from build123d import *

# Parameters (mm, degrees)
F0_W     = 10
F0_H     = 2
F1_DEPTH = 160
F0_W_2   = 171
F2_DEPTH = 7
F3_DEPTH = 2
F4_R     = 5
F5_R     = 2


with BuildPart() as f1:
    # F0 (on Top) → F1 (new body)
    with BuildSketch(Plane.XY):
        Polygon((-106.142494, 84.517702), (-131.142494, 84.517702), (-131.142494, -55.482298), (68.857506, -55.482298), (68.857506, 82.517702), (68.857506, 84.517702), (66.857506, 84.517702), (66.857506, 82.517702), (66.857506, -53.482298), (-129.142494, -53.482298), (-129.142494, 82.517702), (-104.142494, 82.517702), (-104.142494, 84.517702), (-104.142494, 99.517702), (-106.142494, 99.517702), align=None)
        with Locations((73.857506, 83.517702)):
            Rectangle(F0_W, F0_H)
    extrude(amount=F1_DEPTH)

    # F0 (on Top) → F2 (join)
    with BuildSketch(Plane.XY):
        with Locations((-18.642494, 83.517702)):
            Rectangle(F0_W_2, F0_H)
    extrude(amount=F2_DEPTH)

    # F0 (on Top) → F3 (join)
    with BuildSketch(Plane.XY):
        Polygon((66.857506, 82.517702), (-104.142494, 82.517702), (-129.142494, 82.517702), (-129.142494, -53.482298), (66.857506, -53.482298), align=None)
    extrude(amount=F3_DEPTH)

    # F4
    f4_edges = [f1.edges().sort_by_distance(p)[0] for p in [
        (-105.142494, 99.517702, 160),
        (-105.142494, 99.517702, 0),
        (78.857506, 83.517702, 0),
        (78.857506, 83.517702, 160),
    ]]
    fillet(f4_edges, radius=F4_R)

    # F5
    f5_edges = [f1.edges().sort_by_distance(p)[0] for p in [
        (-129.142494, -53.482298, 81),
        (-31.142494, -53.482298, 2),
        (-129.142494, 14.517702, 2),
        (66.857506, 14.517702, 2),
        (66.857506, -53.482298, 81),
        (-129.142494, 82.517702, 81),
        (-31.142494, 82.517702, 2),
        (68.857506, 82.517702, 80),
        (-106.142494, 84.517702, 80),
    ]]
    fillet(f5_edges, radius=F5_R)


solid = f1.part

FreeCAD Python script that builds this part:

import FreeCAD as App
import Part
import Sketcher
from FreeCAD import Vector


def edges_at(feature, points):
    """Names of the edges that pass closest to the given points."""
    edges = feature.Shape.Edges
    near = lambda p: min(range(len(edges)), key=lambda i: edges[i].distToShape(Part.Vertex(*p))[0])
    return sorted({f"Edge{near(p) + 1}" for p in points})

doc = App.newDocument("Part")
body = doc.addObject("PartDesign::Body", "Body")

# Sketch on XY plane
sketch1 = body.newObject("Sketcher::SketchObject", "Sketch")
sketch1.AttachmentSupport = (doc.getObject("XY_Plane"), [""])
sketch1.MapMode = "FlatFace"
sketch1.addGeometry([
    Part.LineSegment(Vector(-106.142494, 84.517702, 0), Vector(-131.142494, 84.517702, 0)),  # 0
    Part.LineSegment(Vector(-131.142494, 84.517702, 0), Vector(-131.142494, -55.482298, 0)),  # 1
    Part.LineSegment(Vector(-131.142494, -55.482298, 0), Vector(68.857506, -55.482298, 0)),  # 2
    Part.LineSegment(Vector(68.857506, -55.482298, 0), Vector(68.857506, 82.517702, 0)),  # 3
    Part.LineSegment(Vector(68.857506, 82.517702, 0), Vector(78.857506, 82.517702, 0)),  # 4
    Part.LineSegment(Vector(78.857506, 82.517702, 0), Vector(78.857506, 84.517702, 0)),  # 5
    Part.LineSegment(Vector(78.857506, 84.517702, 0), Vector(66.857506, 84.517702, 0)),  # 6
    Part.LineSegment(Vector(66.857506, 84.517702, 0), Vector(66.857506, -53.482298, 0)),  # 7
    Part.LineSegment(Vector(66.857506, -53.482298, 0), Vector(-129.142494, -53.482298, 0)),  # 8
    Part.LineSegment(Vector(-129.142494, -53.482298, 0), Vector(-129.142494, 82.517702, 0)),  # 9
    Part.LineSegment(Vector(-129.142494, 82.517702, 0), Vector(-104.142494, 82.517702, 0)),  # 10
    Part.LineSegment(Vector(-104.142494, 82.517702, 0), Vector(-104.142494, 99.517702, 0)),  # 11
    Part.LineSegment(Vector(-104.142494, 99.517702, 0), Vector(-106.142494, 99.517702, 0)),  # 12
    Part.LineSegment(Vector(-106.142494, 99.517702, 0), Vector(-106.142494, 84.517702, 0)),  # 13
], False)
sketch1.addConstraint([
    Sketcher.Constraint("Coincident", 0, 2, 1, 1),
    Sketcher.Constraint("Coincident", 1, 2, 2, 1),
    Sketcher.Constraint("Coincident", 2, 2, 3, 1),
    Sketcher.Constraint("Coincident", 3, 2, 4, 1),
    Sketcher.Constraint("Coincident", 4, 2, 5, 1),
    Sketcher.Constraint("Coincident", 5, 2, 6, 1),
    Sketcher.Constraint("Coincident", 6, 2, 7, 1),
    Sketcher.Constraint("Coincident", 7, 2, 8, 1),
    Sketcher.Constraint("Coincident", 8, 2, 9, 1),
    Sketcher.Constraint("Coincident", 9, 2, 10, 1),
    Sketcher.Constraint("Coincident", 10, 2, 11, 1),
    Sketcher.Constraint("Coincident", 11, 2, 12, 1),
    Sketcher.Constraint("Coincident", 12, 2, 13, 1),
    Sketcher.Constraint("Coincident", 13, 2, 0, 1),
    Sketcher.Constraint("Horizontal", 0),
    Sketcher.Constraint("Vertical", 1),
    Sketcher.Constraint("Horizontal", 2),
    Sketcher.Constraint("Vertical", 3),
    Sketcher.Constraint("Horizontal", 4),
    Sketcher.Constraint("Vertical", 5),
    Sketcher.Constraint("Horizontal", 6),
    Sketcher.Constraint("Vertical", 7),
    Sketcher.Constraint("Horizontal", 8),
    Sketcher.Constraint("Vertical", 9),
    Sketcher.Constraint("Horizontal", 10),
    Sketcher.Constraint("Vertical", 11),
    Sketcher.Constraint("Horizontal", 12),
    Sketcher.Constraint("Vertical", 13),
    Sketcher.Constraint("Horizontal", 0, 2, 5, 2),
    Sketcher.Constraint("Horizontal", 4, 2, 9, 2),
    Sketcher.Constraint("Equal", 0, 10),
    Sketcher.Constraint("Equal", 12, 5),
    Sketcher.Constraint("Equal", 3, 7),
    Sketcher.Constraint("DistanceX", 0, 2, 0, 1, 25.0),
    Sketcher.Constraint("DistanceX", 2, 1, 2, 2, 200.0),
    Sketcher.Constraint("DistanceX", 4, 1, 4, 2, 10.0),
    Sketcher.Constraint("DistanceX", 6, 2, 6, 1, 12.0),
    Sketcher.Constraint("DistanceX", 8, 2, 8, 1, 196.0),
    Sketcher.Constraint("DistanceY", 1, 2, 1, 1, 140.0),
    Sketcher.Constraint("DistanceY", 11, 1, 11, 2, 17.0),
    Sketcher.Constraint("DistanceY", -1, 1, 0, 2, 84.517702),
    Sketcher.Constraint("DistanceX", 0, 2, -1, 1, 131.142494),
])
pad1 = body.newObject("PartDesign::Pad", "Pad")
pad1.Profile = sketch1
pad1.Length = 160

# Sketch on XY plane
sketch2 = body.newObject("Sketcher::SketchObject", "Sketch001")
sketch2.AttachmentSupport = (doc.getObject("XY_Plane"), [""])
sketch2.MapMode = "FlatFace"
sketch2.addGeometry([
    Part.LineSegment(Vector(-104.142494, 84.517702, 0), Vector(-104.142494, 82.517702, 0)),
    Part.LineSegment(Vector(-104.142494, 82.517702, 0), Vector(66.857506, 82.517702, 0)),
    Part.LineSegment(Vector(66.857506, 82.517702, 0), Vector(66.857506, 84.517702, 0)),
    Part.LineSegment(Vector(66.857506, 84.517702, 0), Vector(-104.142494, 84.517702, 0)),
], False)
sketch2.addConstraint([
    Sketcher.Constraint("Coincident", 0, 2, 1, 1),
    Sketcher.Constraint("Coincident", 1, 2, 2, 1),
    Sketcher.Constraint("Coincident", 2, 2, 3, 1),
    Sketcher.Constraint("Coincident", 3, 2, 0, 1),
    Sketcher.Constraint("Vertical", 0),
    Sketcher.Constraint("Horizontal", 1),
    Sketcher.Constraint("Vertical", 2),
    Sketcher.Constraint("Horizontal", 3),
    Sketcher.Constraint("DistanceX", 1, 1, 1, 2, 171.0),
    Sketcher.Constraint("DistanceY", 0, 2, 0, 1, 2.0),
    Sketcher.Constraint("DistanceY", -1, 1, 0, 2, 82.517702),
    Sketcher.Constraint("DistanceX", 0, 2, -1, 1, 104.142494),
])
pad2 = body.newObject("PartDesign::Pad", "Pad001")
pad2.Profile = sketch2
pad2.Length = 7

# Sketch on XY plane
sketch3 = body.newObject("Sketcher::SketchObject", "Sketch002")
sketch3.AttachmentSupport = (doc.getObject("XY_Plane"), [""])
sketch3.MapMode = "FlatFace"
sketch3.addGeometry([
    Part.LineSegment(Vector(66.857506, 82.517702, 0), Vector(-129.142494, 82.517702, 0)),
    Part.LineSegment(Vector(-129.142494, 82.517702, 0), Vector(-129.142494, -53.482298, 0)),
    Part.LineSegment(Vector(-129.142494, -53.482298, 0), Vector(66.857506, -53.482298, 0)),
    Part.LineSegment(Vector(66.857506, -53.482298, 0), Vector(66.857506, 82.517702, 0)),
], False)
sketch3.addConstraint([
    Sketcher.Constraint("Coincident", 0, 2, 1, 1),
    Sketcher.Constraint("Coincident", 1, 2, 2, 1),
    Sketcher.Constraint("Coincident", 2, 2, 3, 1),
    Sketcher.Constraint("Coincident", 3, 2, 0, 1),
    Sketcher.Constraint("Horizontal", 0),
    Sketcher.Constraint("Vertical", 1),
    Sketcher.Constraint("Horizontal", 2),
    Sketcher.Constraint("Vertical", 3),
    Sketcher.Constraint("DistanceX", 0, 2, 0, 1, 196.0),
    Sketcher.Constraint("DistanceY", 1, 2, 1, 1, 136.0),
    Sketcher.Constraint("DistanceY", -1, 1, 0, 2, 82.517702),
    Sketcher.Constraint("DistanceX", 0, 2, -1, 1, 129.142494),
])
pad3 = body.newObject("PartDesign::Pad", "Pad002")
pad3.Profile = sketch3
pad3.Length = 2
doc.recompute()

fillet = body.newObject("PartDesign::Fillet", "Fillet")
fillet.Base = (pad3, edges_at(pad3, [
    (-105.142, 99.518, 160),
    (-105.142, 99.518, 0),
    (78.858, 83.518, 0),
    (78.858, 83.518, 160),
]))
fillet.Radius = 5
doc.recompute()

fillet2 = body.newObject("PartDesign::Fillet", "Fillet001")
fillet2.Base = (fillet, edges_at(fillet, [
    (-129.142, -53.482, 81),
    (-31.142, -53.482, 2),
    (-129.142, 14.518, 2),
    (66.858, 14.518, 2),
    (66.858, -53.482, 81),
    (-129.142, 82.518, 81),
    (-31.142, 82.518, 2),
    (68.858, 82.518, 80),
    (-106.142, 84.518, 80),
]))
fillet2.Radius = 2

doc.recompute()
